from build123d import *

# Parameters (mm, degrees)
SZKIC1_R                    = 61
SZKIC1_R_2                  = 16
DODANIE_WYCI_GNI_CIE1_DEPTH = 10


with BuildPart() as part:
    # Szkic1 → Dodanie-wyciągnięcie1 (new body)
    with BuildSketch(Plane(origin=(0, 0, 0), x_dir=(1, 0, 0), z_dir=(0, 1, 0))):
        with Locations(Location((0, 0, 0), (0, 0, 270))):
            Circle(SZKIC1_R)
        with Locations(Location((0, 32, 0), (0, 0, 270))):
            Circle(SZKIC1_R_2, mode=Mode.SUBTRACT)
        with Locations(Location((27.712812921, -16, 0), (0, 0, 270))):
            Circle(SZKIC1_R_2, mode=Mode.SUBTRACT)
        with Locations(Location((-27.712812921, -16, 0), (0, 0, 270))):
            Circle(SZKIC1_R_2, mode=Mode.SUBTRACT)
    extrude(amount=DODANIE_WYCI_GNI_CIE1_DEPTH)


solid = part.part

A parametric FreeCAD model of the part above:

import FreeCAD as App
import Part
import Sketcher

V = App.Vector
Q = App.Units.Quantity

doc = App.newDocument("Part")
body = doc.addObject("PartDesign::Body", "Body")

# Sketch on XZ plane
sketch1 = body.newObject("Sketcher::SketchObject", "Sketch")
sketch1.AttachmentSupport = (doc.getObject("XZ_Plane"), [""])
sketch1.MapMode = "FlatFace"
sketch1.addGeometry(Part.Circle(V(0, 0, 0), V(0, 0, 1), 61), False)
sketch1.addGeometry(Part.Circle(V(0, -32, 0), V(0, 0, 1), 16), False)
sketch1.addGeometry(Part.Circle(V(-28, 16, 0), V(0, 0, 1), 16), False)
sketch1.addGeometry(Part.Circle(V(28, 16, 0), V(0, 0, 1), 16), False)
sketch1.addConstraint(Sketcher.Constraint("Coincident", 0, 3, -1, 1))
sketch1.addConstraint(Sketcher.Constraint("Equal", 1, 2))
sketch1.addConstraint(Sketcher.Constraint("Equal", 2, 3))
sketch1.addConstraint(Sketcher.Constraint("Symmetric", 2, 3, 3, 3, -2))
sketch1.addConstraint(Sketcher.Constraint("PointOnObject", 1, 3, -2))
sketch1.addConstraint(Sketcher.Constraint("Diameter", 0, Q("122 mm")))
sketch1.addConstraint(Sketcher.Constraint("Diameter", 1, Q("32 mm")))
sketch1.addConstraint(Sketcher.Constraint("DistanceY", 1, 3, -1, 1, Q("32 mm")))
sketch1.addConstraint(Sketcher.Constraint("DistanceY", -1, 1, 2, 3, Q("16 mm")))
sketch1.addConstraint(Sketcher.Constraint("DistanceX", 2, 3, -1, 1, Q("27.712813 mm")))
pad1 = body.newObject("PartDesign::Pad", "Pad")
pad1.Profile = sketch1
pad1.Length = 10
pad1.Reversed = True

doc.recompute()
